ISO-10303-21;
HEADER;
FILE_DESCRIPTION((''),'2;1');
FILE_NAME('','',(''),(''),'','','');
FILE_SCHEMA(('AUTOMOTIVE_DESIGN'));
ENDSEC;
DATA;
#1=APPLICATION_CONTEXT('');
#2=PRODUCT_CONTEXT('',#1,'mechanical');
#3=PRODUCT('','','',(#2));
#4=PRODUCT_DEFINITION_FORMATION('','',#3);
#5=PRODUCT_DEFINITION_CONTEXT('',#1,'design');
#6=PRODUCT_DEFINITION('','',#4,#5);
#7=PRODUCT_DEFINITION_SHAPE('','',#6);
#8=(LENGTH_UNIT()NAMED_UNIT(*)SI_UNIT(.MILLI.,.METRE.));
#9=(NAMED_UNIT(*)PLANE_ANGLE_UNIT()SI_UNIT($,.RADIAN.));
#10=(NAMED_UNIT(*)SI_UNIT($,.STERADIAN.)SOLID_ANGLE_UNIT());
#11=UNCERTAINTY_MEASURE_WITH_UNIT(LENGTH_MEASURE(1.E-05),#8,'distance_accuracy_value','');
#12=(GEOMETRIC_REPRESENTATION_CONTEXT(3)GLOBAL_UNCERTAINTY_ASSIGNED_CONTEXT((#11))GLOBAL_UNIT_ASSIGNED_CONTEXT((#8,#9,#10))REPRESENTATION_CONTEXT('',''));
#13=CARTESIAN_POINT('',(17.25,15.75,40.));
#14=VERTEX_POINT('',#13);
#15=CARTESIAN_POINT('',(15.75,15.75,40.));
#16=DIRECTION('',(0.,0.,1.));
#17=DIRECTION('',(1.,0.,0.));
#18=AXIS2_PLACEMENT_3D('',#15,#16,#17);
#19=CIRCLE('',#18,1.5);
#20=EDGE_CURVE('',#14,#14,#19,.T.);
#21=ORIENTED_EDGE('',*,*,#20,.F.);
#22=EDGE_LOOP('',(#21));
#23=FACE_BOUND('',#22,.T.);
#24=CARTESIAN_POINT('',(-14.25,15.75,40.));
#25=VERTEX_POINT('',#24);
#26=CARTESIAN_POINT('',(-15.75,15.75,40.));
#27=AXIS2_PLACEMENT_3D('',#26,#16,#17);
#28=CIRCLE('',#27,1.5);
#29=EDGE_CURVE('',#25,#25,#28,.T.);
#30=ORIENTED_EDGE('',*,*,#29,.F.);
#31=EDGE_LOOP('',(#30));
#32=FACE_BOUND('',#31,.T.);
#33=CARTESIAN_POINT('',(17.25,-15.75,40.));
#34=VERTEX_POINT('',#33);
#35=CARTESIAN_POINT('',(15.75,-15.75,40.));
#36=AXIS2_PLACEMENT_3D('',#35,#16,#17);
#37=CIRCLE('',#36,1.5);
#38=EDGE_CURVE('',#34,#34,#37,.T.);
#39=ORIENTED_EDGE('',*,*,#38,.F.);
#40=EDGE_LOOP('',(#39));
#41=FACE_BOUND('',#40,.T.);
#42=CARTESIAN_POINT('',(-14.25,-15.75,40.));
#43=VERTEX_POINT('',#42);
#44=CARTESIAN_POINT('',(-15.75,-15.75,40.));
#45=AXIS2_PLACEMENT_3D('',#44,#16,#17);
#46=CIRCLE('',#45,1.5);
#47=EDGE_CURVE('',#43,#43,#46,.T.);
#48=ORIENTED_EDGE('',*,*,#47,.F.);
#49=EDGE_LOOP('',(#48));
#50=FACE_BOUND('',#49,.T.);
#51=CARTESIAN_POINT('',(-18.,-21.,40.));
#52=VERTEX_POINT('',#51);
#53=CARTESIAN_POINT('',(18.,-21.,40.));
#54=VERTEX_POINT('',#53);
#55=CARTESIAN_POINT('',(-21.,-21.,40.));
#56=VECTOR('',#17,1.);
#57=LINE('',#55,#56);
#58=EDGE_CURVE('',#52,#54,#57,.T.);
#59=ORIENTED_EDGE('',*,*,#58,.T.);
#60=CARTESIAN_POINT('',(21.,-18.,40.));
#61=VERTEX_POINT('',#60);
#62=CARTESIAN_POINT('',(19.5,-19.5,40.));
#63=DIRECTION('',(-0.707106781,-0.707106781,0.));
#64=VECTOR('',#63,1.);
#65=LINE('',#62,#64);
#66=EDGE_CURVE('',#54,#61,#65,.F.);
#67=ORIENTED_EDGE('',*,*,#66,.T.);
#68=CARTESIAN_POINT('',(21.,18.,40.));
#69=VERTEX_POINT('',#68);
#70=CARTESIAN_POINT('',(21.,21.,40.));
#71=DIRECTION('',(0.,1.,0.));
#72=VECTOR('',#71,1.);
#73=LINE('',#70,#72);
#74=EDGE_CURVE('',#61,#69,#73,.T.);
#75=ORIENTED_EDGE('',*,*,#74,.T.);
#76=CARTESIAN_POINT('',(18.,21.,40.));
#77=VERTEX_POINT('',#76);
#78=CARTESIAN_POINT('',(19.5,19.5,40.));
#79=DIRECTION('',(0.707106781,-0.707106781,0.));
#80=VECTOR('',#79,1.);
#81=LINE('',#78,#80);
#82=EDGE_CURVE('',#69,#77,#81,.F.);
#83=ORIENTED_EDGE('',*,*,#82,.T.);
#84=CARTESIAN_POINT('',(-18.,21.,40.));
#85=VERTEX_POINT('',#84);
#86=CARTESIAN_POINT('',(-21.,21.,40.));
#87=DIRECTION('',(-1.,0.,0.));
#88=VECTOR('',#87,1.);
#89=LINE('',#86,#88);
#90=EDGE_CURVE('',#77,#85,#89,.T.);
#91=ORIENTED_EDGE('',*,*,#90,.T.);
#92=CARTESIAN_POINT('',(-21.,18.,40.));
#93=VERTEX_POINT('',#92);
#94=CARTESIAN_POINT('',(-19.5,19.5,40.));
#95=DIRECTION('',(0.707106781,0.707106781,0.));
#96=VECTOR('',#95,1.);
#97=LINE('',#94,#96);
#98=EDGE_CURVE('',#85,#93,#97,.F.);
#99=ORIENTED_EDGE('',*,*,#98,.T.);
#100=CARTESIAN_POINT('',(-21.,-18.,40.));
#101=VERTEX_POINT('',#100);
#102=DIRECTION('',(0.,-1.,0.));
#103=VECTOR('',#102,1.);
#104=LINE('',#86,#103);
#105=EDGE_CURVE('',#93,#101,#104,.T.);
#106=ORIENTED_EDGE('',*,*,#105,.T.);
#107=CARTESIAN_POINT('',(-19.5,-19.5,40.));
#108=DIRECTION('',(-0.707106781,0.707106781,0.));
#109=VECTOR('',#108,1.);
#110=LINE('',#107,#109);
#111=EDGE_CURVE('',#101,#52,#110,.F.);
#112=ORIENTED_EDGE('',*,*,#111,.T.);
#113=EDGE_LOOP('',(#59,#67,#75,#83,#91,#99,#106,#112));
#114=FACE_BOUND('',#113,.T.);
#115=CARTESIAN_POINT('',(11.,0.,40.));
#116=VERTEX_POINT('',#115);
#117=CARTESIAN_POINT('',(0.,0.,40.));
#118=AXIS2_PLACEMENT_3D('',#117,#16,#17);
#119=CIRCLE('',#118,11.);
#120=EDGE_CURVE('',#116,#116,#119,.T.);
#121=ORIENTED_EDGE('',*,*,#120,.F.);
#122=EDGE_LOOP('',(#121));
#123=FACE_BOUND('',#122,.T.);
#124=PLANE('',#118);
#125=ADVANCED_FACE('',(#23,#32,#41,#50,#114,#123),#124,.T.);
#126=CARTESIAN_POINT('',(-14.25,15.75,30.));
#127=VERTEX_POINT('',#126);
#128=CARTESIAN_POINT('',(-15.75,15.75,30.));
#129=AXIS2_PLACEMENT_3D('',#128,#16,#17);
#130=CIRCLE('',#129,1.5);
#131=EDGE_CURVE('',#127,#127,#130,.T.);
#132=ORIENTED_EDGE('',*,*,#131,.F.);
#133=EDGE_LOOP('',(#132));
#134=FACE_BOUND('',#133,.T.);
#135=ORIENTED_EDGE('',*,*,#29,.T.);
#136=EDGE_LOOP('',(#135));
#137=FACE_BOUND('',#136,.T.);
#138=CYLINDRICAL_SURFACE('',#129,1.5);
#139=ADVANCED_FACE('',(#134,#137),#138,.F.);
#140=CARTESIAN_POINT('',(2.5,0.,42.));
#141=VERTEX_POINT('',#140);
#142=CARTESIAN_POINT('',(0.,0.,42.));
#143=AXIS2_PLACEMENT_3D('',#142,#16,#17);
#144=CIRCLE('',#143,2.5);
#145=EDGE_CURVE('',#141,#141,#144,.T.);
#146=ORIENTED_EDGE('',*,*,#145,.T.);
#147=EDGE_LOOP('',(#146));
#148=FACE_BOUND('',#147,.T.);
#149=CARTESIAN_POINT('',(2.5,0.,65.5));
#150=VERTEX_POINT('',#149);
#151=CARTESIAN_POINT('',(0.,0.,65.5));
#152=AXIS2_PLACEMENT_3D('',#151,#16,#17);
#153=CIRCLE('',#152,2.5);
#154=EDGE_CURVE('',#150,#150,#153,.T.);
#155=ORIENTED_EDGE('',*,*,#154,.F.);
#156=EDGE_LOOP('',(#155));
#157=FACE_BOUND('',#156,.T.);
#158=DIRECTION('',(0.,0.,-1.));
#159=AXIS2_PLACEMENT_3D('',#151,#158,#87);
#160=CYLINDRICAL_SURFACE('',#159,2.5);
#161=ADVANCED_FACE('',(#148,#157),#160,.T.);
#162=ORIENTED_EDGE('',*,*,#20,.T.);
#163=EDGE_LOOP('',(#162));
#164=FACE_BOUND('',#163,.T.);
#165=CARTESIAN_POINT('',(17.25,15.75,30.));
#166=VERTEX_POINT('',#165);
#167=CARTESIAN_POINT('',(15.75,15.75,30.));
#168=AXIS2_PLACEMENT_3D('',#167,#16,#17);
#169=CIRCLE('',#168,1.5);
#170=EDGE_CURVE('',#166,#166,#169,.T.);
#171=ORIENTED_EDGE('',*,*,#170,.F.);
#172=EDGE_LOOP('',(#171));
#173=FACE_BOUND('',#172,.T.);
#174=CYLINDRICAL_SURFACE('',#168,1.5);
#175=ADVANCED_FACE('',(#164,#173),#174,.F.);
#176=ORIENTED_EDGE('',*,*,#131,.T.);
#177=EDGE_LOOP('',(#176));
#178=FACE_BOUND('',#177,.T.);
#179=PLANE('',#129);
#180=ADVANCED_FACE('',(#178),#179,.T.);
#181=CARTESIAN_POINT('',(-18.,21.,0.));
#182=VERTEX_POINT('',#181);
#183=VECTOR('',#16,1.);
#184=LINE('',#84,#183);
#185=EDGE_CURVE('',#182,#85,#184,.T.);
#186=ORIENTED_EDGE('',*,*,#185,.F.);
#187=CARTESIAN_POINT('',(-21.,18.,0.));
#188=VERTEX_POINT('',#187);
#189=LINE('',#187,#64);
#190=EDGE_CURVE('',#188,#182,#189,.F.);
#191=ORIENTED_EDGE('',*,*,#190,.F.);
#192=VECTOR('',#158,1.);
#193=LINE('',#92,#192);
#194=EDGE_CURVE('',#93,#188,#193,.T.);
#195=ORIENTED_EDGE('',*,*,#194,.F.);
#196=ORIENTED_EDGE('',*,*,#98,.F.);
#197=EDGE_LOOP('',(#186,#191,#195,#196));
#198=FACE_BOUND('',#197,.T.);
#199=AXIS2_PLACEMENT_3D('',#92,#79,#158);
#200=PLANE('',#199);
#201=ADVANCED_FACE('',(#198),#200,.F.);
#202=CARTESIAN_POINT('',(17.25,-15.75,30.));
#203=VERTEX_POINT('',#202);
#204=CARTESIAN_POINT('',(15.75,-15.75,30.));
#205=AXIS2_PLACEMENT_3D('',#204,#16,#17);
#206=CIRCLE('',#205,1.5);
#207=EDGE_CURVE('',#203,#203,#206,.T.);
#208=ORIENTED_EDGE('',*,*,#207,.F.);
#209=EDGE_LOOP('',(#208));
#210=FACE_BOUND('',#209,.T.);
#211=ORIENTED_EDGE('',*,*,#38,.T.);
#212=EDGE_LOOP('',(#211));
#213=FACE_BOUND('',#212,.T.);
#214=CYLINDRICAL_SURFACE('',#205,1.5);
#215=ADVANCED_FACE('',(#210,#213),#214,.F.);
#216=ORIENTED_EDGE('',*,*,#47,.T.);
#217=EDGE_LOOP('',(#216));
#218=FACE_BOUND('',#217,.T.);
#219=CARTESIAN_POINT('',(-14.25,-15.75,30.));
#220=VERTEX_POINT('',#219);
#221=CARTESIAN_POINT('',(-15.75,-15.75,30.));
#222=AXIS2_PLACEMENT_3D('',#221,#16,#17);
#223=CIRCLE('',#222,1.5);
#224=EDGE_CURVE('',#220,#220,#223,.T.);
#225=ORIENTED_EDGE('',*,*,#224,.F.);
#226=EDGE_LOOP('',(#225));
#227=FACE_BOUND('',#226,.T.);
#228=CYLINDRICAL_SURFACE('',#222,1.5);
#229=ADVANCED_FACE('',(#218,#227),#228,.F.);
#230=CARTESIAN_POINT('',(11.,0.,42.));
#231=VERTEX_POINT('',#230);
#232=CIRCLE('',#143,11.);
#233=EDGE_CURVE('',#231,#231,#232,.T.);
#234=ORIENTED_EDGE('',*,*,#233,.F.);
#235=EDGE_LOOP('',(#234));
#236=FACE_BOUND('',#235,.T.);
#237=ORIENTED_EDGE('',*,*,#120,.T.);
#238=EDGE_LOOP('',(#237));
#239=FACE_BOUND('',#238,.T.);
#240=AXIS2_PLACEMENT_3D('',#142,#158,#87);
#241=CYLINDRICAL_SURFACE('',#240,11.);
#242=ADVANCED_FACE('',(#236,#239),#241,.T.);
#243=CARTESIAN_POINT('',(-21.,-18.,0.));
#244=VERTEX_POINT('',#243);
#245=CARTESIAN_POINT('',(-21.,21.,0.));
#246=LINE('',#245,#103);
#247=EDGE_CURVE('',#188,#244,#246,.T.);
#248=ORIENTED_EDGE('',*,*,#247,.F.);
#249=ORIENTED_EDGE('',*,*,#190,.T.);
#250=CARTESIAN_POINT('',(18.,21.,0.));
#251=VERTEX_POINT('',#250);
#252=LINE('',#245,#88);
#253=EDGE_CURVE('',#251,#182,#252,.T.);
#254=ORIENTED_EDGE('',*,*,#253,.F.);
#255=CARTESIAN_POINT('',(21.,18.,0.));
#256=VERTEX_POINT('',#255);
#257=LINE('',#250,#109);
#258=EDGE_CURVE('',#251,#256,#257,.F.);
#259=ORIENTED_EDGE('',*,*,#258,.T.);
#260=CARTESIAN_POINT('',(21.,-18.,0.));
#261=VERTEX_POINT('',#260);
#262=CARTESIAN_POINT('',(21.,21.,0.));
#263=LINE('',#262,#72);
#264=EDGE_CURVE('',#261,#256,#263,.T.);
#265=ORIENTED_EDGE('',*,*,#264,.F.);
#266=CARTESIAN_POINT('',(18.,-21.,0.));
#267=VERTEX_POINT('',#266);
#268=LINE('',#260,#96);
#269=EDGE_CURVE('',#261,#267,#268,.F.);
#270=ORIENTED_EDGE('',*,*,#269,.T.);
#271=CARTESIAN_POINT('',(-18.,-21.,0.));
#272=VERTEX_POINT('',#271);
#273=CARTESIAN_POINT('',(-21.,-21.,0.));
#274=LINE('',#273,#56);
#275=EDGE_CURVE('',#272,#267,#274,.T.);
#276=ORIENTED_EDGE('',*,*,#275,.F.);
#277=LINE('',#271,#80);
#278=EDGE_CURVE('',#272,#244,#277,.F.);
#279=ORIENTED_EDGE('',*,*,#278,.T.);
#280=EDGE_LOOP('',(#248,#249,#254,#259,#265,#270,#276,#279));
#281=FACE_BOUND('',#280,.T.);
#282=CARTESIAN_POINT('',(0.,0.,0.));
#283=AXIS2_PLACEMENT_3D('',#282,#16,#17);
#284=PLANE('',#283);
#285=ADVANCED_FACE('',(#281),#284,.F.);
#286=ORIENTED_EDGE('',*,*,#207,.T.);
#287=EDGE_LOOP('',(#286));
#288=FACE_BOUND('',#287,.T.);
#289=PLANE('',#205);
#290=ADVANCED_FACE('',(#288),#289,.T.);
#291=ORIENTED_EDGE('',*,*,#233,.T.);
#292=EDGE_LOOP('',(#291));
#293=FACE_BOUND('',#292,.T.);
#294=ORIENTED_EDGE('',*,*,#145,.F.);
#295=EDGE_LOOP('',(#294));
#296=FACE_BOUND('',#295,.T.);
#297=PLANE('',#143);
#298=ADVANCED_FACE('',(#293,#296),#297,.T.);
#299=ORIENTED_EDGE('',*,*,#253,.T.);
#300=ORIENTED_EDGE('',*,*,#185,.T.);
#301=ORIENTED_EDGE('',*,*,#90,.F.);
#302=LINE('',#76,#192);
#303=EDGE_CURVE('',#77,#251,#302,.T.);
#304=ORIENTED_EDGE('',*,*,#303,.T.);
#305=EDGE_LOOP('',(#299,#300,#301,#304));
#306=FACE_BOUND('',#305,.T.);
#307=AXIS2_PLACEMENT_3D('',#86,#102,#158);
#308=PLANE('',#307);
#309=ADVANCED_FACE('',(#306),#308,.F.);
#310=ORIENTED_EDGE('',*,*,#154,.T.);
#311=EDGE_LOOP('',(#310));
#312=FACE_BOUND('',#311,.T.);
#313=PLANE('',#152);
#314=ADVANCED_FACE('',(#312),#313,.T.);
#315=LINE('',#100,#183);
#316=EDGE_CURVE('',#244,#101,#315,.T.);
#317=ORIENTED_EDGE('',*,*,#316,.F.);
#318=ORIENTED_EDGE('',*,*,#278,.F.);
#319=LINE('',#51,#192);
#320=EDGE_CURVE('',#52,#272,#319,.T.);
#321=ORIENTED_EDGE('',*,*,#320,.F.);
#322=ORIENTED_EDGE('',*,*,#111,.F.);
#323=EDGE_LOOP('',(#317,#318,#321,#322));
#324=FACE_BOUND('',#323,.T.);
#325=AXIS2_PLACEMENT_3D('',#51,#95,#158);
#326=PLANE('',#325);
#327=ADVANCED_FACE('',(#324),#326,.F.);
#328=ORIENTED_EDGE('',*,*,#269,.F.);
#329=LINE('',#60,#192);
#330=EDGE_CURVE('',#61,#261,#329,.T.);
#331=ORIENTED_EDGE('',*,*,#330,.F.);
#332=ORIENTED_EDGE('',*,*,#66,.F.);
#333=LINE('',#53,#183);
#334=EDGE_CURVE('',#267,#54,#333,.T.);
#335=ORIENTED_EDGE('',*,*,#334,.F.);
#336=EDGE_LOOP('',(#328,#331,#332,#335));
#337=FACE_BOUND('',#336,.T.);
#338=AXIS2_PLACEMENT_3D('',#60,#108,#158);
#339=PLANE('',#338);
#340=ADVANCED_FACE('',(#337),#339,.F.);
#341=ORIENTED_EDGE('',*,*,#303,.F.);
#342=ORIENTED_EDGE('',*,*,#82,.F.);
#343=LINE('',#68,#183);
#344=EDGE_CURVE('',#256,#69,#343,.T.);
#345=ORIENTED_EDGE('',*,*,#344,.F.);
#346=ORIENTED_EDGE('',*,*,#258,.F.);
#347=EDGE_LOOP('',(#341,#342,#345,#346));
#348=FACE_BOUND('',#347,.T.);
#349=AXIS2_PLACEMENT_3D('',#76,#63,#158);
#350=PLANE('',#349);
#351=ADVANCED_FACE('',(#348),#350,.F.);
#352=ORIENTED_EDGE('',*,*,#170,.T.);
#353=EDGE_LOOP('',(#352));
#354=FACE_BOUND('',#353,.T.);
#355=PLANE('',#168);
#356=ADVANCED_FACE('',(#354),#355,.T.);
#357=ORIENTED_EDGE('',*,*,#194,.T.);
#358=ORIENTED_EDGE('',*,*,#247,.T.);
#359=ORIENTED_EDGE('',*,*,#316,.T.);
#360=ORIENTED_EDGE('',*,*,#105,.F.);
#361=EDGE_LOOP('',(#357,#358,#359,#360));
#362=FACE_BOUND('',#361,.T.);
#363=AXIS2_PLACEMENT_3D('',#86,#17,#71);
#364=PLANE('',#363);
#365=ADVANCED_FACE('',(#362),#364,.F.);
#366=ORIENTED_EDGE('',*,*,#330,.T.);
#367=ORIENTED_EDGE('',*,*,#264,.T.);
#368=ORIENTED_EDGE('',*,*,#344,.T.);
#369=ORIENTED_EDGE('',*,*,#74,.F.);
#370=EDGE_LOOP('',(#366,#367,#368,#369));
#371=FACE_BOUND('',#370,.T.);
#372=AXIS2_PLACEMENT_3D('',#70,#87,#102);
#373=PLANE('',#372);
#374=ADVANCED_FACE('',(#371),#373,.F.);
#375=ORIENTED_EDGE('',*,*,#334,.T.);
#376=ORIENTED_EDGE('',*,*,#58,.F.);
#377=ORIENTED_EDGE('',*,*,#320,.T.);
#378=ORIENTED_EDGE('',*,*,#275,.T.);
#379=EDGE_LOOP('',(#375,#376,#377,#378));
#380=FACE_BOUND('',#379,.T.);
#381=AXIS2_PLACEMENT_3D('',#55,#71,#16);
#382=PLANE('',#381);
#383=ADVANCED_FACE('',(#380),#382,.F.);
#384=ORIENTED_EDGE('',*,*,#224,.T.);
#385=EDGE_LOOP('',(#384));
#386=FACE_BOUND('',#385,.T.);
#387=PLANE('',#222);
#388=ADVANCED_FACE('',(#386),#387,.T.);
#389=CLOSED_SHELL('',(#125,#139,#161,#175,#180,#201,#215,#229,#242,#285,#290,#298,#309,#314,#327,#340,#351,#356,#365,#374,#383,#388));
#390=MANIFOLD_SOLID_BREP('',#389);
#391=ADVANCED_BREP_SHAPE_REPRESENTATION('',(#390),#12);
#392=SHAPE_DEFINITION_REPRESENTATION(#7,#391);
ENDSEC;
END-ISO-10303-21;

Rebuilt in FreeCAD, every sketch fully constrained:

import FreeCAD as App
import Part
import Sketcher

V = App.Vector


def edges_at(feature, points):
    """Names of the edges that pass closest to the given points."""
    edges = feature.Shape.Edges
    near = lambda p: min(range(len(edges)), key=lambda i: edges[i].distToShape(Part.Vertex(*p))[0])
    return sorted({f"Edge{near(p) + 1}" for p in points})

doc = App.newDocument("Part")
body = doc.addObject("PartDesign::Body", "Body")

# Sketch on XY plane
sketch1 = body.newObject("Sketcher::SketchObject", "Sketch")
sketch1.AttachmentSupport = (doc.getObject("XY_Plane"), [""])
sketch1.MapMode = "FlatFace"
sketch1.addGeometry([
    Part.LineSegment(V(-21, 21, 0), V(-21, -21, 0)),
    Part.LineSegment(V(-21, -21, 0), V(21, -21, 0)),
    Part.LineSegment(V(21, -21, 0), V(21, 21, 0)),
    Part.LineSegment(V(21, 21, 0), V(-21, 21, 0)),
], False)
sketch1.addConstraint([
    Sketcher.Constraint("Coincident", 0, 2, 1, 1),
    Sketcher.Constraint("Coincident", 1, 2, 2, 1),
    Sketcher.Constraint("Coincident", 2, 2, 3, 1),
    Sketcher.Constraint("Coincident", 3, 2, 0, 1),
    Sketcher.Constraint("Vertical", 0),
    Sketcher.Constraint("Horizontal", 1),
    Sketcher.Constraint("Vertical", 2),
    Sketcher.Constraint("Horizontal", 3),
    Sketcher.Constraint("Symmetric", 0, 2, 2, 2, -1, 1),
    Sketcher.Constraint("Equal", 3, 0),
    Sketcher.Constraint("DistanceX", 1, 1, 1, 2, 42.0),
])
pad1 = body.newObject("PartDesign::Pad", "Pad")
pad1.Profile = sketch1
pad1.Length = 40

# Sketch on XY plane
sketch2 = body.newObject("Sketcher::SketchObject", "Sketch001")
sketch2.AttachmentSupport = (doc.getObject("XY_Plane"), [""])
sketch2.MapMode = "FlatFace"
sketch2.AttachmentOffset = App.Placement(V(0, 0, 40), App.Rotation())
sketch2.addGeometry(Part.Circle(V(0, 0, 0), V(0, 0, 1), 11), False)
sketch2.addConstraint([
    Sketcher.Constraint("Coincident", 0, 3, -1, 1),
    Sketcher.Constraint("Diameter", 0, 22.0),
])
pad2 = body.newObject("PartDesign::Pad", "Pad001")
pad2.Profile = sketch2
pad2.Length = 2

# Sketch on XY plane
sketch3 = body.newObject("Sketcher::SketchObject", "Sketch002")
sketch3.AttachmentSupport = (doc.getObject("XY_Plane"), [""])
sketch3.MapMode = "FlatFace"
sketch3.AttachmentOffset = App.Placement(V(0, 0, 42), App.Rotation())
sketch3.addGeometry(Part.Circle(V(0, 0, 0), V(0, 0, 1), 2.5), False)
sketch3.addConstraint([
    Sketcher.Constraint("Coincident", 0, 3, -1, 1),
    Sketcher.Constraint("Diameter", 0, 5.0),
])
pad3 = body.newObject("PartDesign::Pad", "Pad002")
pad3.Profile = sketch3
pad3.Length = 23.5
doc.recompute()

chamfer = body.newObject("PartDesign::Chamfer", "Chamfer")
chamfer.Base = (pad3, edges_at(pad3, [
    (21, -21, 20),
    (-21, -21, 20),
    (-21, 21, 20),
    (21, 21, 20),
]))
chamfer.Size = 3

# Sketch on XY plane
sketch4 = body.newObject("Sketcher::SketchObject", "Sketch003")
sketch4.AttachmentSupport = (doc.getObject("XY_Plane"), [""])
sketch4.MapMode = "FlatFace"
sketch4.AttachmentOffset = App.Placement(V(0, 0, 40), App.Rotation())
sketch4.addGeometry([
    Part.Circle(V(-15.75, 15.75, 0), V(0, 0, 1), 1.5),
    Part.Circle(V(15.75, 15.75, 0), V(0, 0, 1), 1.5),
    Part.Circle(V(-15.75, -15.75, 0), V(0, 0, 1), 1.5),
    Part.Circle(V(15.75, -15.75, 0), V(0, 0, 1), 1.5),
], False)
sketch4.addConstraint([
    Sketcher.Constraint("Equal", 0, 1),
    Sketcher.Constraint("Equal", 1, 2),
    Sketcher.Constraint("Equal", 2, 3),
    Sketcher.Constraint("Symmetric", 1, 3, 2, 3, -1, 1),
    Sketcher.Constraint("Symmetric", 0, 3, 3, 3, -1, 1),
    Sketcher.Constraint("Symmetric", 0, 3, 1, 3, -2),
    Sketcher.Constraint("Diameter", 0, 3.0),
    Sketcher.Constraint("DistanceX", 0, 3, 1, 3, 31.5),
    Sketcher.Constraint("DistanceY", 2, 3, 0, 3, 31.5),
])
pocket1 = body.newObject("PartDesign::Pocket", "Pocket")
pocket1.Profile = sketch4
pocket1.Length = 10

doc.recompute()
